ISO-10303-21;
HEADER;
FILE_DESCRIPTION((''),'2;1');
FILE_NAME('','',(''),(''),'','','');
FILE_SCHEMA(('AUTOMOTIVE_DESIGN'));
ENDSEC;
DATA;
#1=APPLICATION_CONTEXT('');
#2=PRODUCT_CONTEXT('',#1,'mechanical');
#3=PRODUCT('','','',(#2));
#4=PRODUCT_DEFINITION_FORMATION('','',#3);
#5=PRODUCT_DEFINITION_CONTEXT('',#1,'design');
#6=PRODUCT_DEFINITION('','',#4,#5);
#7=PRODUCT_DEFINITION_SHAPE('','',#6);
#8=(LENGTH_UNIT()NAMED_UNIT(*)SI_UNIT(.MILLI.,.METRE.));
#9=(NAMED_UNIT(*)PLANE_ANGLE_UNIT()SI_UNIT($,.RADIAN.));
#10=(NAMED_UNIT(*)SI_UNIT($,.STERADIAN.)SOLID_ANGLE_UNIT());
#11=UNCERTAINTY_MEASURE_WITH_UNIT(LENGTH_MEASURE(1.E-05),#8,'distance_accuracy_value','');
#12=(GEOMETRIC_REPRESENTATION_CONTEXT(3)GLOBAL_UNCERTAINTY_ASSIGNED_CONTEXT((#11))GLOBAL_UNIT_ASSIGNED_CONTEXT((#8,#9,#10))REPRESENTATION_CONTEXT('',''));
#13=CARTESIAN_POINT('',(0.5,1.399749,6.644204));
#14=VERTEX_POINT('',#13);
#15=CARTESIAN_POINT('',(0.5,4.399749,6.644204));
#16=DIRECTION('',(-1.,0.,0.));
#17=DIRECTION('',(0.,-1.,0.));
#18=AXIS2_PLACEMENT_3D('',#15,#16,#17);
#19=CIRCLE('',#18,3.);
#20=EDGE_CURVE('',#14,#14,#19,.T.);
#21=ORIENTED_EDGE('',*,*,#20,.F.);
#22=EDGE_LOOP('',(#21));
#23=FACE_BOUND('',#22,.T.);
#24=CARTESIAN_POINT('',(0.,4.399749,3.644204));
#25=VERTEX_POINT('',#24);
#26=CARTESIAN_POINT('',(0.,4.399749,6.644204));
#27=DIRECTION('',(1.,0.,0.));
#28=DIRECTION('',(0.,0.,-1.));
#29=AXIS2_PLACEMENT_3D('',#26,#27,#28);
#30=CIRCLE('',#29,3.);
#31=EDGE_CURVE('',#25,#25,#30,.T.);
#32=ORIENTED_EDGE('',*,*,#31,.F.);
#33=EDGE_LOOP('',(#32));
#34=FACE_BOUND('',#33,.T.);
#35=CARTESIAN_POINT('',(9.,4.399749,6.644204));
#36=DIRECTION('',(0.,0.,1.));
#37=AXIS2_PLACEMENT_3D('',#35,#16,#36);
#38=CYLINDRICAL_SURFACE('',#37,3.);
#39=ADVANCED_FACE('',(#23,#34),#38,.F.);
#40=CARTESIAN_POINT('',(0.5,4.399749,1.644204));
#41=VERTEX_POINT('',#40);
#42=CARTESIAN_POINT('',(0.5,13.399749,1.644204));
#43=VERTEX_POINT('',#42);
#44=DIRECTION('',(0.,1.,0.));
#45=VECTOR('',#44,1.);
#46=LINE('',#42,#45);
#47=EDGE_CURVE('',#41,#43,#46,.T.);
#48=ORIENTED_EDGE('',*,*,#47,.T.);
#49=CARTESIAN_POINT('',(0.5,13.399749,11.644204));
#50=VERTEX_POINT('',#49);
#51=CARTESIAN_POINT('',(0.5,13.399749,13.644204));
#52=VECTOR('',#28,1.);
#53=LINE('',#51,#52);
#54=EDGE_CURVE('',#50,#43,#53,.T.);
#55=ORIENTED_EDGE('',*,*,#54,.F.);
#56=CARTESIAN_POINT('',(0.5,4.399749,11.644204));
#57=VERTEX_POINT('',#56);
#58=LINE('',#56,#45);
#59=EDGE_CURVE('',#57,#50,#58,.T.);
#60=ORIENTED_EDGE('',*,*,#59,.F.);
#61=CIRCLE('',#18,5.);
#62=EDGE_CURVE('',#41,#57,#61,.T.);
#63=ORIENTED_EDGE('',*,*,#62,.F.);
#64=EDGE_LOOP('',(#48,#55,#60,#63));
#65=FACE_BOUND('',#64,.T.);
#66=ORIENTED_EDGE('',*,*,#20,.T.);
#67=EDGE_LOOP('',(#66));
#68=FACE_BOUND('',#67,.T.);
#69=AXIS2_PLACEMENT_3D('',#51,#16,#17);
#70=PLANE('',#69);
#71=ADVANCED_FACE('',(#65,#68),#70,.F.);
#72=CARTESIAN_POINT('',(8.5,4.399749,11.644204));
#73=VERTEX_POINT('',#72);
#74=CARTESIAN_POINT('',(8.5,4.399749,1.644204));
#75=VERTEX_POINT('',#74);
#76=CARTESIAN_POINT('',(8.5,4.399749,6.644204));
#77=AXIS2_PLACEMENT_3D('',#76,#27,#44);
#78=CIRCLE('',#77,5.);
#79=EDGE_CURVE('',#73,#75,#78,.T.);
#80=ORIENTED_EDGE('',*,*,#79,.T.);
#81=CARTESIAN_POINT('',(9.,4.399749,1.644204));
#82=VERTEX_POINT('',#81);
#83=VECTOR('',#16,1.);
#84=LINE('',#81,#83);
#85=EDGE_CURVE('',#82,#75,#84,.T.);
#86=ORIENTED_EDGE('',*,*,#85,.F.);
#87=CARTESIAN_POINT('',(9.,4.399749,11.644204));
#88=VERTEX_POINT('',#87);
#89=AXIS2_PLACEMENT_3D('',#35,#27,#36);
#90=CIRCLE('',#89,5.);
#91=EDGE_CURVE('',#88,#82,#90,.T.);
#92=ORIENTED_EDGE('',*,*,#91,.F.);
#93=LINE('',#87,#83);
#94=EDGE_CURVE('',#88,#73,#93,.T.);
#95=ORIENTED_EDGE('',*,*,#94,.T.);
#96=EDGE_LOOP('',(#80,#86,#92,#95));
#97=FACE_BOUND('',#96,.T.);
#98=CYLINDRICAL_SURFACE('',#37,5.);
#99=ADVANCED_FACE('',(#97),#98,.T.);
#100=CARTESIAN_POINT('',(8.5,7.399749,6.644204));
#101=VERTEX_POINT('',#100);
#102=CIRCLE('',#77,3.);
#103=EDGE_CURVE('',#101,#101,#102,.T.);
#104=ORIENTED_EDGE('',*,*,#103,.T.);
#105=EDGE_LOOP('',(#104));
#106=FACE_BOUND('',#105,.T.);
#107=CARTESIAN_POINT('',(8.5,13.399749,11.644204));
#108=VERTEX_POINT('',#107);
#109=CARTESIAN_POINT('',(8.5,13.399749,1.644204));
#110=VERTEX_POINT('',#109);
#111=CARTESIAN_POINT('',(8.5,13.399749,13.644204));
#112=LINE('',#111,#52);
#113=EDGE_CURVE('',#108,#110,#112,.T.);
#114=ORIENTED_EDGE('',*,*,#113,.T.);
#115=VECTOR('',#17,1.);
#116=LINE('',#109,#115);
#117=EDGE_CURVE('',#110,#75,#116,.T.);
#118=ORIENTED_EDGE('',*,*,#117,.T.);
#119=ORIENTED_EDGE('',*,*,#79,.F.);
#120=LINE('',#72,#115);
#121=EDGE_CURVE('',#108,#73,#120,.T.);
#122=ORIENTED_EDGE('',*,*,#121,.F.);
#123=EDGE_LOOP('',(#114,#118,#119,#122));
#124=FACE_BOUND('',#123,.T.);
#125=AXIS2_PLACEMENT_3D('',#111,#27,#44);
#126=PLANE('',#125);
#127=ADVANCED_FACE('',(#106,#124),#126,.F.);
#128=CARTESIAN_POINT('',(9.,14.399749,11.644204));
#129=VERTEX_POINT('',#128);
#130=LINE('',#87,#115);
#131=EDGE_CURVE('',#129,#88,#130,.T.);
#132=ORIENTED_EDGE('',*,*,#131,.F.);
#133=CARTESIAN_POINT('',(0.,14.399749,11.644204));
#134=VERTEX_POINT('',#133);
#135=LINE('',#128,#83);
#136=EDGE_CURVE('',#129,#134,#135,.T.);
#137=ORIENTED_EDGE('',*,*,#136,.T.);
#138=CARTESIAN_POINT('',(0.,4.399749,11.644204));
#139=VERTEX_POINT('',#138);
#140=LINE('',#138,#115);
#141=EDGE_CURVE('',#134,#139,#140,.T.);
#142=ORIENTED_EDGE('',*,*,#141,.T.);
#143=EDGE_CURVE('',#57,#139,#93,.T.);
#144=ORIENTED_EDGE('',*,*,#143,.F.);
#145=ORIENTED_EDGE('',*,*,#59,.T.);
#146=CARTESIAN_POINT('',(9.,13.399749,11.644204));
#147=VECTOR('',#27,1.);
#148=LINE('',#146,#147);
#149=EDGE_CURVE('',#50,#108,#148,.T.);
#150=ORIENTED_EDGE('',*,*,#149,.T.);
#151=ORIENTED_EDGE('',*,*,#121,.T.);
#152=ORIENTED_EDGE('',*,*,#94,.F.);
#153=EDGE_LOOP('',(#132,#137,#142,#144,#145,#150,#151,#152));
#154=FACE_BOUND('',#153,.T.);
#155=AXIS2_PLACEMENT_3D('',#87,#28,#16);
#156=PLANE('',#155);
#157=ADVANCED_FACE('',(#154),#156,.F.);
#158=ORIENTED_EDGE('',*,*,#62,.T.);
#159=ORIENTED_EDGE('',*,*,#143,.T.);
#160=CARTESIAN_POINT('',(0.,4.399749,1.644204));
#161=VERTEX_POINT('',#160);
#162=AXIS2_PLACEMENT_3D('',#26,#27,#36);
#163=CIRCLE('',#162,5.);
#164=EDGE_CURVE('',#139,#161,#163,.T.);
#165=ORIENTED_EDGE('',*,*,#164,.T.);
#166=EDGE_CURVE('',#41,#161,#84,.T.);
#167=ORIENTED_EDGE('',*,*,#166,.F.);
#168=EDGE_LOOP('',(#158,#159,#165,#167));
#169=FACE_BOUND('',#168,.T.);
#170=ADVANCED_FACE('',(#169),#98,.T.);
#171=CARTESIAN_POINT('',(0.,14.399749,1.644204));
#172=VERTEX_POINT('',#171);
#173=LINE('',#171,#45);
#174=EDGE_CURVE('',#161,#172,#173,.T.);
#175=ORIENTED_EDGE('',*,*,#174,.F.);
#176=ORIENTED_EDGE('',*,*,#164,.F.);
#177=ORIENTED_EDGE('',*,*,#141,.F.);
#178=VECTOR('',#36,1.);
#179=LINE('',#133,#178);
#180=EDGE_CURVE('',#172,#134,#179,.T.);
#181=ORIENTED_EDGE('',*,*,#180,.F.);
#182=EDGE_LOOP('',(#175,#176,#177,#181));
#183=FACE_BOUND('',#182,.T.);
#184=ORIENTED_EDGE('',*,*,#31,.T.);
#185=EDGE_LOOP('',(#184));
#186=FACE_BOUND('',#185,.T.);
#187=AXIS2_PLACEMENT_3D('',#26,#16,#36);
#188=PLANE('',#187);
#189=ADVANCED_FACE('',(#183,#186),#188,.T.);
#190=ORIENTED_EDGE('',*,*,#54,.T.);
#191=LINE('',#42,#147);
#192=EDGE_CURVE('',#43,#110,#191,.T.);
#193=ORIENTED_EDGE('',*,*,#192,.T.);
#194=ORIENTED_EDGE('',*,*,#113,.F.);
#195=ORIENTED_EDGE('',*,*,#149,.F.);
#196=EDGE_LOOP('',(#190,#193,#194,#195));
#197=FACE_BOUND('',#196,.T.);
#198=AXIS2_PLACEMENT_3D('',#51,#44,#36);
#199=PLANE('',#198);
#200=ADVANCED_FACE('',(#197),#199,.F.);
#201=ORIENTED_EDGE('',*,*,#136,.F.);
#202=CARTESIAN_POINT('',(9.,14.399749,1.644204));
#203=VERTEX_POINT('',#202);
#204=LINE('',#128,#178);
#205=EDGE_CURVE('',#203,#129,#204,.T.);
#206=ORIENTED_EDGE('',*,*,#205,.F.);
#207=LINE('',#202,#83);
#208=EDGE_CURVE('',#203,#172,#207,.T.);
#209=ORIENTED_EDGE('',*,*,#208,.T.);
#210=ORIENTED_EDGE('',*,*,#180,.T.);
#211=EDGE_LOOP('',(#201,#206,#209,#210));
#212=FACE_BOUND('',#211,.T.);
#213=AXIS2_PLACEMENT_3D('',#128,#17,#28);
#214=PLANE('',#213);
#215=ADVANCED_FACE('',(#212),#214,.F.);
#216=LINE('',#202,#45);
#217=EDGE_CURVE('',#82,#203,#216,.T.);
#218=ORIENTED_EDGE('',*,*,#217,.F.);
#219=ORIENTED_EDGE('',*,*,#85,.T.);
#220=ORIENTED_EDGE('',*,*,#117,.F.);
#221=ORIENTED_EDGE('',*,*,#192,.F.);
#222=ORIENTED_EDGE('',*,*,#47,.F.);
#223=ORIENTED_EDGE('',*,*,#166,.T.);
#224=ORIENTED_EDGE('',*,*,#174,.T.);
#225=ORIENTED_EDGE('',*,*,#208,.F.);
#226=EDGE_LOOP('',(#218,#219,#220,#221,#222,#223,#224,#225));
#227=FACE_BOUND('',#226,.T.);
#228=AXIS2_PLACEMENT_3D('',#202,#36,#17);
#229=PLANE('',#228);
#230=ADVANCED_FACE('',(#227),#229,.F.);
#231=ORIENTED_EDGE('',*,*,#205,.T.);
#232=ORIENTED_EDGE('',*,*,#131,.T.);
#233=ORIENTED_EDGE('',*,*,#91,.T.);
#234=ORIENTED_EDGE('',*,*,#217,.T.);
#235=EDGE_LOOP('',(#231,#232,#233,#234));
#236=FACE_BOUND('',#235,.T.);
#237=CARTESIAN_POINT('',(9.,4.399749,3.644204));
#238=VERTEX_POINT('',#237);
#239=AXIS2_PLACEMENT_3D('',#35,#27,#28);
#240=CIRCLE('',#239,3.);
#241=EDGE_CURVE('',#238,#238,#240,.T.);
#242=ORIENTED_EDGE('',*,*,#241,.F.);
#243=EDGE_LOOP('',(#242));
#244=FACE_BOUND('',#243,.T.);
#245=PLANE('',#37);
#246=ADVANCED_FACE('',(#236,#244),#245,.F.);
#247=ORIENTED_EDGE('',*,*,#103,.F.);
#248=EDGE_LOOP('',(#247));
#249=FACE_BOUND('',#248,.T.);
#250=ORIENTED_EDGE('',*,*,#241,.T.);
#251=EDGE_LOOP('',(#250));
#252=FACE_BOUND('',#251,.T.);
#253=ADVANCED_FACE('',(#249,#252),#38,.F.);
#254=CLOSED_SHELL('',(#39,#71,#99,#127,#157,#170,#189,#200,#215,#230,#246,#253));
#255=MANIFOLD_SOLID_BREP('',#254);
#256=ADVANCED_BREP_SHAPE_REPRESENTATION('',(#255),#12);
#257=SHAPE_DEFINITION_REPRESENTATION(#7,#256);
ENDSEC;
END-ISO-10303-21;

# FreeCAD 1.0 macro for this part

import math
import FreeCAD as App
import Part
import Sketcher
from FreeCAD import Vector
Q = App.Units.Quantity


def add_polygon(sketch, points):
    """Adds a closed chain of lines whose ends are joined by coincident constraints."""
    first, n = sketch.GeometryCount, len(points)
    for a, b in zip(points, points[1:] + points[:1]):
        sketch.addGeometry(Part.LineSegment(App.Vector(*a, 0), App.Vector(*b, 0)), False)
    for i in range(n):
        sketch.addConstraint(Sketcher.Constraint("Coincident", first + i, 2, first + (i + 1) % n, 1))

doc = App.newDocument("Part")
params = doc.addObject("Spreadsheet::Sheet", "Params")
for row, (alias, value) in enumerate([
    ("sketch1_diameter", "6 mm"),
    ("sketch1_radius", "5 mm"),
    ("pad1_length", "9 mm"),
    ("sketch2_width", "8 mm"),
    ("pocket1_length", "12 mm"),
], start=1):
    params.set(f"A{row}", alias)
    params.set(f"B{row}", "=" + value)
    params.setAlias(f"B{row}", alias)

body = doc.addObject("PartDesign::Body", "Body")

# Sketch on YZ plane
sketch1 = doc.addObject("Sketcher::SketchObject", "Sketch")
body.addObject(sketch1)
sketch1.AttachmentSupport = (doc.YZ_Plane, [""])
sketch1.MapMode = "FlatFace"
sketch1.addGeometry([
    Part.LineSegment(Vector(14.4, 11.6, 0), Vector(4.4, 11.6, 0)),  # 0
    Part.ArcOfCircle(Part.Circle(Vector(4.4, 6.6, 0), Vector(0, 0, 1), 5), math.radians(90), math.radians(270)),  # 1
    Part.LineSegment(Vector(4.4, 1.6, 0), Vector(14.4, 1.6, 0)),  # 2
    Part.LineSegment(Vector(14.4, 1.6, 0), Vector(14.4, 11.6, 0)),  # 3
    Part.Circle(Vector(4.4, 6.6, 0), Vector(0, 0, 1), 3),  # 4
], False)
sketch1.addConstraint([
    Sketcher.Constraint("Tangent", 0, 2, 1, 1),
    Sketcher.Constraint("Tangent", 1, 2, 2, 1),
    Sketcher.Constraint("Coincident", 2, 2, 3, 1),
    Sketcher.Constraint("Coincident", 3, 2, 0, 1),
    Sketcher.Constraint("Horizontal", 0),
    Sketcher.Constraint("Horizontal", 2),
    Sketcher.Constraint("Vertical", 3),
    Sketcher.Constraint("Coincident", 4, 3, 1, 3),
    Sketcher.Constraint("Equal", 2, 3),
    Sketcher.Constraint("Diameter", 4, Q("6 mm")),
    Sketcher.Constraint("Radius", 1, Q("5 mm")),
    Sketcher.Constraint("DistanceX", -1, 1, 1, 3, Q("4.399749 mm")),
    Sketcher.Constraint("DistanceY", -1, 1, 1, 3, Q("6.644204 mm")),
])
sketch1.setExpression("Constraints[9]", "Params.sketch1_diameter")
sketch1.setExpression("Constraints[10]", "Params.sketch1_radius")
pad1 = doc.addObject("PartDesign::Pad", "Pad")
body.addObject(pad1)
pad1.Profile = sketch1
pad1.setExpression("Length", "Params.pad1_length")

# Sketch on XY plane
sketch2 = doc.addObject("Sketcher::SketchObject", "Sketch001")
body.addObject(sketch2)
sketch2.AttachmentSupport = (doc.XY_Plane, [""])
sketch2.MapMode = "FlatFace"
sketch2.AttachmentOffset = App.Placement(Vector(0, 0, 1.644204), App.Rotation())
add_polygon(sketch2, [(8, 13), (8, -2), (0, -2), (0, 13)])  # lines 0-3
sketch2.addConstraint([
    Sketcher.Constraint("Vertical", 0),
    Sketcher.Constraint("Horizontal", 1),
    Sketcher.Constraint("Vertical", 2),
    Sketcher.Constraint("Horizontal", 3),
    Sketcher.Constraint("DistanceX", 1, 2, 1, 1, Q("8 mm")),
    Sketcher.Constraint("DistanceX", -1, 1, 0, 2, Q("8.5 mm")),
    Sketcher.Constraint("DistanceY", 0, 2, 0, 1, Q("14.926113 mm")),
    Sketcher.Constraint("DistanceY", -1, 1, 2, 2, Q("13.399749 mm")),
])
sketch2.setExpression("Constraints[8]", "Params.sketch2_width")
pocket1 = doc.addObject("PartDesign::Pocket", "Pocket")
body.addObject(pocket1)
pocket1.Profile = sketch2
pocket1.setExpression("Length", "Params.pocket1_length")
pocket1.Reversed = True

doc.recompute()
